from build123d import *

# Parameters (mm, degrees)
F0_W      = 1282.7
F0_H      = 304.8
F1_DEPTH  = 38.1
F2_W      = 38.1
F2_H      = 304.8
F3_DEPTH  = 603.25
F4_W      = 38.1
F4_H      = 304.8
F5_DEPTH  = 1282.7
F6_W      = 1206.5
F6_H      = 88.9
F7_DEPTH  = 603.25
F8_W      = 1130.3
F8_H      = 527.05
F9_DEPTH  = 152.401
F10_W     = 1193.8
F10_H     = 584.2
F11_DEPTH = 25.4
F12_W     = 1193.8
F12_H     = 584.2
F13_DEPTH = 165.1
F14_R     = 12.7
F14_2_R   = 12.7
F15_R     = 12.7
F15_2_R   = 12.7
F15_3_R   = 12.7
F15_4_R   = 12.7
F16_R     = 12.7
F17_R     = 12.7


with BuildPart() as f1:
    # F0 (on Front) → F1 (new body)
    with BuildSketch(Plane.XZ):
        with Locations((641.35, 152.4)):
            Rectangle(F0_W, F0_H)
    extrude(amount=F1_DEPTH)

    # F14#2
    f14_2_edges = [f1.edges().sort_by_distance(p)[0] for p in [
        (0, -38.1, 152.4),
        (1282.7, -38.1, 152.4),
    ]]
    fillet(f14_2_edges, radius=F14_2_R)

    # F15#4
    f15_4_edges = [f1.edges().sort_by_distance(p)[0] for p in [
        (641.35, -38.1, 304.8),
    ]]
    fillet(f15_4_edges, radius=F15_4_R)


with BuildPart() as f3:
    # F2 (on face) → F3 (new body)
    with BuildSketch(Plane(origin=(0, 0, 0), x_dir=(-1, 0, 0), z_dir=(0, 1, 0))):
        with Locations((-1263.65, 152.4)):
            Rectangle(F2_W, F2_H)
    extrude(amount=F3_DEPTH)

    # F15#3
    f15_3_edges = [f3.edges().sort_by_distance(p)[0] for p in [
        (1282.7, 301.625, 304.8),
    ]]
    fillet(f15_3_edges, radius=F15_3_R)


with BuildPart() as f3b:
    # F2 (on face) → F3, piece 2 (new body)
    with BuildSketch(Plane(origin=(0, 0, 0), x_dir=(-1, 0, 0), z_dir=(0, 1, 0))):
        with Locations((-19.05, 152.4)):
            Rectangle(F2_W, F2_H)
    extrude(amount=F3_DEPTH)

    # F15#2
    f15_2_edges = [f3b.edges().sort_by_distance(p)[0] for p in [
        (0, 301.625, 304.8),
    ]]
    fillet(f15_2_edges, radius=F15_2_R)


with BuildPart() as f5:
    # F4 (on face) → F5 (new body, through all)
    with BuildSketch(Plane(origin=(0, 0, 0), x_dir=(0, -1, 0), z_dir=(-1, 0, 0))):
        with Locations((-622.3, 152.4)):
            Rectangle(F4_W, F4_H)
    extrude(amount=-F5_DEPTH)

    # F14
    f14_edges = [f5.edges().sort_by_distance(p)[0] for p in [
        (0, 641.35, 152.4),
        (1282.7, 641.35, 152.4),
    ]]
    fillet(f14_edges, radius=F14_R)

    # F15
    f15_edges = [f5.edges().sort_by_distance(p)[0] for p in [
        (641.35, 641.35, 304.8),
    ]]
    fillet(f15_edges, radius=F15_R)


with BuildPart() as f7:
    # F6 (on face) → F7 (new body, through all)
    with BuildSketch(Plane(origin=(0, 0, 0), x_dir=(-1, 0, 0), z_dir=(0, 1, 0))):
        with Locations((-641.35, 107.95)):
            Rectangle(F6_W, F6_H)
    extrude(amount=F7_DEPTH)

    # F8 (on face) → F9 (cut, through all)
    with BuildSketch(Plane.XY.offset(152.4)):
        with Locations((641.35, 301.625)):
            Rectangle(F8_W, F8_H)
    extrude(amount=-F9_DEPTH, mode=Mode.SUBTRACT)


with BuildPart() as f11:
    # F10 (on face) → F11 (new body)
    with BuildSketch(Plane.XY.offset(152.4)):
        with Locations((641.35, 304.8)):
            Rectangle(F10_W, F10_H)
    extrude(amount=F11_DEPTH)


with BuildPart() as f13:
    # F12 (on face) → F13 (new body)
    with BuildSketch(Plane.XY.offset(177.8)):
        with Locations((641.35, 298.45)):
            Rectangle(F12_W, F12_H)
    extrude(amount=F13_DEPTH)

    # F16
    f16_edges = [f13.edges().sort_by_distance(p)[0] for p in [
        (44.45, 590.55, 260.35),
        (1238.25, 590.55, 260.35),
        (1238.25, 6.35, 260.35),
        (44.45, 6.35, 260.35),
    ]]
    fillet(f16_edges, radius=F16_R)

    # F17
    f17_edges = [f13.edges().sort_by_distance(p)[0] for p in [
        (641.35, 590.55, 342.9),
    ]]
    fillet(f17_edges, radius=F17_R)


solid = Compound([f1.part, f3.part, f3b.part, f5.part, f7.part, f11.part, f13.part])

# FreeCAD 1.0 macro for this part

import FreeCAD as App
import Part
import Sketcher
from FreeCAD import Vector
Q = App.Units.Quantity


def edges_at(feature, points):
    """Names of the edges that pass closest to the given points."""
    edges = feature.Shape.Edges
    near = lambda p: min(range(len(edges)), key=lambda i: edges[i].distToShape(Part.Vertex(*p))[0])
    return sorted({f"Edge{near(p) + 1}" for p in points})

doc = App.newDocument("Part")
params = doc.addObject("Spreadsheet::Sheet", "Params")
for row, (alias, value) in enumerate([
    ("sketch1_height", "12 in"),
    ("sketch1_width", "50.5 in"),
    ("pad1_length", "1.5 in"),
    ("fillet_radius", "0.5 in"),
    ("fillet2_radius", "0.5 in"),
    ("sketch2_height", "12 in"),
    ("sketch2_width", "1.5 in"),
    ("pad2_length", "23.75 in"),
    ("fillet3_radius", "0.5 in"),
    ("sketch3_height", "12 in"),
    ("sketch3_width", "1.5 in"),
    ("pad3_length", "23.75 in"),
    ("fillet4_radius", "0.5 in"),
    ("sketch4_height", "12 in"),
    ("sketch4_width", "1.5 in"),
    ("pad4_length", "50.5 in"),
    ("fillet5_radius", "0.5 in"),
    ("fillet6_radius", "0.5 in"),
    ("sketch5_width", "47.5 in"),
    ("sketch5_height", "3.5 in"),
    ("pad5_length", "23.75 in"),
    ("sketch6_width", "44.5 in"),
    ("sketch6_height", "20.75 in"),
    ("sketch7_width", "47 in"),
    ("sketch7_height", "23 in"),
    ("pad6_length", "1 in"),
    ("sketch8_width", "47 in"),
    ("sketch8_height", "23 in"),
    ("pad7_length", "6.5 in"),
    ("fillet7_radius", "0.5 in"),
    ("fillet8_radius", "0.5 in"),
], start=1):
    params.set(f"A{row}", alias)
    params.set(f"B{row}", "=" + value)
    params.setAlias(f"B{row}", alias)

body = doc.addObject("PartDesign::Body", "Body")

# Sketch on XZ plane
sketch1 = doc.addObject("Sketcher::SketchObject", "Sketch")
body.addObject(sketch1)
sketch1.AttachmentSupport = (doc.XZ_Plane, [""])
sketch1.MapMode = "FlatFace"
sketch1.addGeometry([
    Part.LineSegment(Vector(0, 305, 0), Vector(0, 0, 0)),
    Part.LineSegment(Vector(0, 0, 0), Vector(1283, 0, 0)),
    Part.LineSegment(Vector(1283, 0, 0), Vector(1283, 305, 0)),
    Part.LineSegment(Vector(1283, 305, 0), Vector(0, 305, 0)),
], False)
sketch1.addConstraint([
    Sketcher.Constraint("Coincident", 0, 2, 1, 1),
    Sketcher.Constraint("Coincident", 1, 2, 2, 1),
    Sketcher.Constraint("Coincident", 2, 2, 3, 1),
    Sketcher.Constraint("Coincident", 3, 2, 0, 1),
    Sketcher.Constraint("Vertical", 0),
    Sketcher.Constraint("Horizontal", 1),
    Sketcher.Constraint("Vertical", 2),
    Sketcher.Constraint("Horizontal", 3),
    Sketcher.Constraint("Coincident", 0, 2, -1, 1),
    Sketcher.Constraint("DistanceY", 0, 2, 0, 1, Q("12 in")),
    Sketcher.Constraint("DistanceX", 1, 1, 1, 2, Q("50.5 in")),
])
sketch1.setExpression("Constraints[9]", "Params.sketch1_height")
sketch1.setExpression("Constraints[10]", "Params.sketch1_width")
pad1 = doc.addObject("PartDesign::Pad", "Pad")
body.addObject(pad1)
pad1.Profile = sketch1
pad1.setExpression("Length", "Params.pad1_length")
doc.recompute()

fillet = doc.addObject("PartDesign::Fillet", "Fillet")
body.addObject(fillet)
fillet.Base = (pad1, edges_at(pad1, [(0, -38.1, 152.4), (1282.7, -38.1, 152.4)]))
fillet.setExpression("Radius", "Params.fillet_radius")
doc.recompute()

fillet2 = doc.addObject("PartDesign::Fillet", "Fillet001")
body.addObject(fillet2)
fillet2.Base = (fillet, edges_at(fillet, [(641.35, -38.1, 304.8)]))
fillet2.setExpression("Radius", "Params.fillet2_radius")
body2 = doc.addObject("PartDesign::Body", "Body001")

# Sketch on XZ plane
sketch2 = doc.addObject("Sketcher::SketchObject", "Sketch001")
body2.addObject(sketch2)
sketch2.AttachmentSupport = (doc.getObject("XZ_Plane001"), [""])
sketch2.MapMode = "FlatFace"
sketch2.addGeometry([
    Part.LineSegment(Vector(1283, 305, 0), Vector(1283, 0, 0)),
    Part.LineSegment(Vector(1283, 0, 0), Vector(1245, 0, 0)),
    Part.LineSegment(Vector(1245, 0, 0), Vector(1245, 305, 0)),
    Part.LineSegment(Vector(1245, 305, 0), Vector(1283, 305, 0)),
], False)
sketch2.addConstraint([
    Sketcher.Constraint("Coincident", 0, 2, 1, 1),
    Sketcher.Constraint("Coincident", 1, 2, 2, 1),
    Sketcher.Constraint("Coincident", 2, 2, 3, 1),
    Sketcher.Constraint("Coincident", 3, 2, 0, 1),
    Sketcher.Constraint("Vertical", 0),
    Sketcher.Constraint("Horizontal", 1),
    Sketcher.Constraint("Vertical", 2),
    Sketcher.Constraint("Horizontal", 3),
    Sketcher.Constraint("PointOnObject", 0, 2, -1),
    Sketcher.Constraint("DistanceY", 0, 2, 0, 1, Q("12 in")),
    Sketcher.Constraint("DistanceX", 1, 2, 1, 1, Q("1.5 in")),
    Sketcher.Constraint("DistanceX", -1, 1, 1, 2, Q("49 in")),
])
sketch2.setExpression("Constraints[9]", "Params.sketch2_height")
sketch2.setExpression("Constraints[10]", "Params.sketch2_width")
pad2 = doc.addObject("PartDesign::Pad", "Pad001")
body2.addObject(pad2)
pad2.Profile = sketch2
pad2.setExpression("Length", "Params.pad2_length")
pad2.Reversed = True
doc.recompute()

fillet3 = doc.addObject("PartDesign::Fillet", "Fillet002")
body2.addObject(fillet3)
fillet3.Base = (pad2, edges_at(pad2, [(1282.7, 301.625, 304.8)]))
fillet3.setExpression("Radius", "Params.fillet3_radius")
body3 = doc.addObject("PartDesign::Body", "Body002")

# Sketch on XZ plane
sketch3 = doc.addObject("Sketcher::SketchObject", "Sketch002")
body3.addObject(sketch3)
sketch3.AttachmentSupport = (doc.getObject("XZ_Plane002"), [""])
sketch3.MapMode = "FlatFace"
sketch3.addGeometry([
    Part.LineSegment(Vector(38, 305, 0), Vector(38, 0, 0)),
    Part.LineSegment(Vector(38, 0, 0), Vector(0, 0, 0)),
    Part.LineSegment(Vector(0, 0, 0), Vector(0, 305, 0)),
    Part.LineSegment(Vector(0, 305, 0), Vector(38, 305, 0)),
], False)
sketch3.addConstraint([
    Sketcher.Constraint("Coincident", 0, 2, 1, 1),
    Sketcher.Constraint("Coincident", 1, 2, 2, 1),
    Sketcher.Constraint("Coincident", 2, 2, 3, 1),
    Sketcher.Constraint("Coincident", 3, 2, 0, 1),
    Sketcher.Constraint("Vertical", 0),
    Sketcher.Constraint("Horizontal", 1),
    Sketcher.Constraint("Vertical", 2),
    Sketcher.Constraint("Horizontal", 3),
    Sketcher.Constraint("Coincident", 1, 2, -1, 1),
    Sketcher.Constraint("DistanceY", 0, 2, 0, 1, Q("12 in")),
    Sketcher.Constraint("DistanceX", 1, 2, 1, 1, Q("1.5 in")),
])
sketch3.setExpression("Constraints[9]", "Params.sketch3_height")
sketch3.setExpression("Constraints[10]", "Params.sketch3_width")
pad3 = doc.addObject("PartDesign::Pad", "Pad002")
body3.addObject(pad3)
pad3.Profile = sketch3
pad3.setExpression("Length", "Params.pad3_length")
pad3.Reversed = True
doc.recompute()

fillet4 = doc.addObject("PartDesign::Fillet", "Fillet003")
body3.addObject(fillet4)
fillet4.Base = (pad3, edges_at(pad3, [(0, 301.625, 304.8)]))
fillet4.setExpression("Radius", "Params.fillet4_radius")
body4 = doc.addObject("PartDesign::Body", "Body003")

# Sketch on YZ plane
sketch4 = doc.addObject("Sketcher::SketchObject", "Sketch003")
body4.addObject(sketch4)
sketch4.AttachmentSupport = (doc.getObject("YZ_Plane003"), [""])
sketch4.MapMode = "FlatFace"
sketch4.addGeometry([
    Part.LineSegment(Vector(641, 305, 0), Vector(641, 0, 0)),
    Part.LineSegment(Vector(641, 0, 0), Vector(603, 0, 0)),
    Part.LineSegment(Vector(603, 0, 0), Vector(603, 305, 0)),
    Part.LineSegment(Vector(603, 305, 0), Vector(641, 305, 0)),
], False)
sketch4.addConstraint([
    Sketcher.Constraint("Coincident", 0, 2, 1, 1),
    Sketcher.Constraint("Coincident", 1, 2, 2, 1),
    Sketcher.Constraint("Coincident", 2, 2, 3, 1),
    Sketcher.Constraint("Coincident", 3, 2, 0, 1),
    Sketcher.Constraint("Vertical", 0),
    Sketcher.Constraint("Horizontal", 1),
    Sketcher.Constraint("Vertical", 2),
    Sketcher.Constraint("Horizontal", 3),
    Sketcher.Constraint("PointOnObject", 0, 2, -1),
    Sketcher.Constraint("DistanceY", 0, 2, 0, 1, Q("12 in")),
    Sketcher.Constraint("DistanceX", 1, 2, 1, 1, Q("1.5 in")),
    Sketcher.Constraint("DistanceX", -1, 1, 0, 2, Q("25.25 in")),
])
sketch4.setExpression("Constraints[9]", "Params.sketch4_height")
sketch4.setExpression("Constraints[10]", "Params.sketch4_width")
pad4 = doc.addObject("PartDesign::Pad", "Pad003")
body4.addObject(pad4)
pad4.Profile = sketch4
pad4.setExpression("Length", "Params.pad4_length")
doc.recompute()

fillet5 = doc.addObject("PartDesign::Fillet", "Fillet004")
body4.addObject(fillet5)
fillet5.Base = (pad4, edges_at(pad4, [(0, 641.35, 152.4), (1282.7, 641.35, 152.4)]))
fillet5.setExpression("Radius", "Params.fillet5_radius")
doc.recompute()

fillet6 = doc.addObject("PartDesign::Fillet", "Fillet005")
body4.addObject(fillet6)
fillet6.Base = (fillet5, edges_at(fillet5, [(641.35, 641.35, 304.8)]))
fillet6.setExpression("Radius", "Params.fillet6_radius")
body5 = doc.addObject("PartDesign::Body", "Body004")

# Sketch on XZ plane
sketch5 = doc.addObject("Sketcher::SketchObject", "Sketch004")
body5.addObject(sketch5)
sketch5.AttachmentSupport = (doc.getObject("XZ_Plane004"), [""])
sketch5.MapMode = "FlatFace"
sketch5.addGeometry([
    Part.LineSegment(Vector(1245, 152, 0), Vector(1245, 64, 0)),
    Part.LineSegment(Vector(1245, 64, 0), Vector(38, 64, 0)),
    Part.LineSegment(Vector(38, 64, 0), Vector(38, 152, 0)),
    Part.LineSegment(Vector(38, 152, 0), Vector(1245, 152, 0)),
], False)
sketch5.addConstraint([
    Sketcher.Constraint("Coincident", 0, 2, 1, 1),
    Sketcher.Constraint("Coincident", 1, 2, 2, 1),
    Sketcher.Constraint("Coincident", 2, 2, 3, 1),
    Sketcher.Constraint("Coincident", 3, 2, 0, 1),
    Sketcher.Constraint("Vertical", 0),
    Sketcher.Constraint("Horizontal", 1),
    Sketcher.Constraint("Vertical", 2),
    Sketcher.Constraint("Horizontal", 3),
    Sketcher.Constraint("DistanceX", 1, 2, 1, 1, Q("47.5 in")),
    Sketcher.Constraint("DistanceY", 0, 2, 0, 1, Q("3.5 in")),
    Sketcher.Constraint("DistanceX", -1, 1, 0, 2, Q("49 in")),
    Sketcher.Constraint("DistanceY", -1, 1, 2, 2, Q("6 in")),
])
sketch5.setExpression("Constraints[8]", "Params.sketch5_width")
sketch5.setExpression("Constraints[9]", "Params.sketch5_height")
pad5 = doc.addObject("PartDesign::Pad", "Pad004")
body5.addObject(pad5)
pad5.Profile = sketch5
pad5.setExpression("Length", "Params.pad5_length")
pad5.Reversed = True

# Sketch on XY plane
sketch6 = doc.addObject("Sketcher::SketchObject", "Sketch005")
body5.addObject(sketch6)
sketch6.AttachmentSupport = (doc.getObject("XY_Plane004"), [""])
sketch6.MapMode = "FlatFace"
sketch6.AttachmentOffset = App.Placement(Vector(0, 0, 6 * 25.4), App.Rotation())
sketch6.addGeometry([
    Part.LineSegment(Vector(76, 565, 0), Vector(76, 38, 0)),
    Part.LineSegment(Vector(76, 38, 0), Vector(1206, 38, 0)),
    Part.LineSegment(Vector(1206, 38, 0), Vector(1206, 565, 0)),
    Part.LineSegment(Vector(1206, 565, 0), Vector(76, 565, 0)),
], False)
sketch6.addConstraint([
    Sketcher.Constraint("Coincident", 0, 2, 1, 1),
    Sketcher.Constraint("Coincident", 1, 2, 2, 1),
    Sketcher.Constraint("Coincident", 2, 2, 3, 1),
    Sketcher.Constraint("Coincident", 3, 2, 0, 1),
    Sketcher.Constraint("Vertical", 0),
    Sketcher.Constraint("Horizontal", 1),
    Sketcher.Constraint("Vertical", 2),
    Sketcher.Constraint("Horizontal", 3),
    Sketcher.Constraint("DistanceX", 1, 1, 1, 2, Q("44.5 in")),
    Sketcher.Constraint("DistanceX", -1, 1, 0, 2, Q("3 in")),
    Sketcher.Constraint("DistanceY", 0, 2, 0, 1, Q("20.75 in")),
    Sketcher.Constraint("DistanceY", -1, 1, 0, 2, Q("1.5 in")),
])
sketch6.setExpression("Constraints[8]", "Params.sketch6_width")
sketch6.setExpression("Constraints[10]", "Params.sketch6_height")
pocket1 = doc.addObject("PartDesign::Pocket", "Pocket")
body5.addObject(pocket1)
pocket1.Profile = sketch6
pocket1.Type = "ThroughAll"
body6 = doc.addObject("PartDesign::Body", "Body005")

# Sketch on XY plane
sketch7 = doc.addObject("Sketcher::SketchObject", "Sketch006")
body6.addObject(sketch7)
sketch7.AttachmentSupport = (doc.getObject("XY_Plane005"), [""])
sketch7.MapMode = "FlatFace"
sketch7.AttachmentOffset = App.Placement(Vector(0, 0, 6 * 25.4), App.Rotation())
sketch7.addGeometry([
    Part.LineSegment(Vector(44, 597, 0), Vector(44, 13, 0)),
    Part.LineSegment(Vector(44, 13, 0), Vector(1238, 13, 0)),
    Part.LineSegment(Vector(1238, 13, 0), Vector(1238, 597, 0)),
    Part.LineSegment(Vector(1238, 597, 0), Vector(44, 597, 0)),
], False)
sketch7.addConstraint([
    Sketcher.Constraint("Coincident", 0, 2, 1, 1),
    Sketcher.Constraint("Coincident", 1, 2, 2, 1),
    Sketcher.Constraint("Coincident", 2, 2, 3, 1),
    Sketcher.Constraint("Coincident", 3, 2, 0, 1),
    Sketcher.Constraint("Vertical", 0),
    Sketcher.Constraint("Horizontal", 1),
    Sketcher.Constraint("Vertical", 2),
    Sketcher.Constraint("Horizontal", 3),
    Sketcher.Constraint("DistanceX", 1, 1, 1, 2, Q("47 in")),
    Sketcher.Constraint("DistanceY", 0, 2, 0, 1, Q("23 in")),
    Sketcher.Constraint("DistanceY", -1, 1, 0, 2, Q("0.5 in")),
    Sketcher.Constraint("DistanceX", -1, 1, 0, 2, Q("1.75 in")),
])
sketch7.setExpression("Constraints[8]", "Params.sketch7_width")
sketch7.setExpression("Constraints[9]", "Params.sketch7_height")
pad6 = doc.addObject("PartDesign::Pad", "Pad005")
body6.addObject(pad6)
pad6.Profile = sketch7
pad6.setExpression("Length", "Params.pad6_length")
body7 = doc.addObject("PartDesign::Body", "Body006")

# Sketch on XY plane
sketch8 = doc.addObject("Sketcher::SketchObject", "Sketch007")
body7.addObject(sketch8)
sketch8.AttachmentSupport = (doc.getObject("XY_Plane006"), [""])
sketch8.MapMode = "FlatFace"
sketch8.AttachmentOffset = App.Placement(Vector(0, 0, 7 * 25.4), App.Rotation())
sketch8.addGeometry([
    Part.LineSegment(Vector(44, 591, 0), Vector(44, 6, 0)),
    Part.LineSegment(Vector(44, 6, 0), Vector(1238, 6, 0)),
    Part.LineSegment(Vector(1238, 6, 0), Vector(1238, 591, 0)),
    Part.LineSegment(Vector(1238, 591, 0), Vector(44, 591, 0)),
], False)
sketch8.addConstraint([
    Sketcher.Constraint("Coincident", 0, 2, 1, 1),
    Sketcher.Constraint("Coincident", 1, 2, 2, 1),
    Sketcher.Constraint("Coincident", 2, 2, 3, 1),
    Sketcher.Constraint("Coincident", 3, 2, 0, 1),
    Sketcher.Constraint("Vertical", 0),
    Sketcher.Constraint("Horizontal", 1),
    Sketcher.Constraint("Vertical", 2),
    Sketcher.Constraint("Horizontal", 3),
    Sketcher.Constraint("DistanceX", 1, 1, 1, 2, Q("47 in")),
    Sketcher.Constraint("DistanceY", 0, 2, 0, 1, Q("23 in")),
    Sketcher.Constraint("DistanceX", -1, 1, 0, 2, Q("1.75 in")),
    Sketcher.Constraint("DistanceY", -1, 1, 0, 2, Q("0.25 in")),
])
sketch8.setExpression("Constraints[8]", "Params.sketch8_width")
sketch8.setExpression("Constraints[9]", "Params.sketch8_height")
pad7 = doc.addObject("PartDesign::Pad", "Pad006")
body7.addObject(pad7)
pad7.Profile = sketch8
pad7.setExpression("Length", "Params.pad7_length")
doc.recompute()

fillet7 = doc.addObject("PartDesign::Fillet", "Fillet006")
body7.addObject(fillet7)
fillet7.Base = (pad7, edges_at(pad7, [
    (44.45, 590.55, 260.35),
    (1238.25, 590.55, 260.35),
    (1238.25, 6.35, 260.35),
    (44.45, 6.35, 260.35),
]))
fillet7.setExpression("Radius", "Params.fillet7_radius")
doc.recompute()

fillet8 = doc.addObject("PartDesign::Fillet", "Fillet007")
body7.addObject(fillet8)
fillet8.Base = (fillet7, edges_at(fillet7, [(641.35, 590.55, 342.9)]))
fillet8.setExpression("Radius", "Params.fillet8_radius")

doc.recompute()
